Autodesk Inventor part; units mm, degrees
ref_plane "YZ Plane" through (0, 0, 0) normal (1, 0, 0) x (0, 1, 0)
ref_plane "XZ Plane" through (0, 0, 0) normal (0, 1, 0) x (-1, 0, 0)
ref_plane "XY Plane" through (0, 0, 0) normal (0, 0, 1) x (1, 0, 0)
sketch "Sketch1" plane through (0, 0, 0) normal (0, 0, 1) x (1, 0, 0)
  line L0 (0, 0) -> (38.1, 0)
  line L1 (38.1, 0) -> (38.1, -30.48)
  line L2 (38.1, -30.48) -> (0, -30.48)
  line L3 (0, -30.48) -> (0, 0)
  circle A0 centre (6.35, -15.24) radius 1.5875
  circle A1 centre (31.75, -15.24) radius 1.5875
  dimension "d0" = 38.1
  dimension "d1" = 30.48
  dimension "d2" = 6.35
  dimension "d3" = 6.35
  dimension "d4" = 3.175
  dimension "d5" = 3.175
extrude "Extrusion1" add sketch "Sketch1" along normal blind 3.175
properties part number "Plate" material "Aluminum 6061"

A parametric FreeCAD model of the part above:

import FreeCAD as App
import Part
import Sketcher

V = App.Vector
Q = App.Units.Quantity

doc = App.newDocument("Part")
body = doc.addObject("PartDesign::Body", "Body")

# Sketch on XY plane
sketch1 = body.newObject("Sketcher::SketchObject", "Sketch")
sketch1.AttachmentSupport = (doc.getObject("XY_Plane"), [""])
sketch1.MapMode = "FlatFace"
sketch1.addGeometry(Part.LineSegment(V(38.1, 0, 0), V(0, 0, 0)), False)
sketch1.addGeometry(Part.LineSegment(V(0, 0, 0), V(0, -30.5, 0)), False)
sketch1.addGeometry(Part.LineSegment(V(0, -30.5, 0), V(38.1, -30.5, 0)), False)
sketch1.addGeometry(Part.LineSegment(V(38.1, -30.5, 0), V(38.1, 0, 0)), False)
sketch1.addGeometry(Part.Circle(V(31.8, -15.2, 0), V(0, 0, 1), 1.6), False)
sketch1.addGeometry(Part.Circle(V(6.3, -15.2, 0), V(0, 0, 1), 1.6), False)
sketch1.addConstraint(Sketcher.Constraint("Coincident", 0, 2, 1, 1))
sketch1.addConstraint(Sketcher.Constraint("Coincident", 1, 2, 2, 1))
sketch1.addConstraint(Sketcher.Constraint("Coincident", 2, 2, 3, 1))
sketch1.addConstraint(Sketcher.Constraint("Coincident", 3, 2, 0, 1))
sketch1.addConstraint(Sketcher.Constraint("Horizontal", 0))
sketch1.addConstraint(Sketcher.Constraint("Vertical", 1))
sketch1.addConstraint(Sketcher.Constraint("Horizontal", 2))
sketch1.addConstraint(Sketcher.Constraint("Vertical", 3))
sketch1.addConstraint(Sketcher.Constraint("Coincident", 0, 2, -1, 1))
sketch1.addConstraint(Sketcher.Constraint("Equal", 4, 5))
sketch1.addConstraint(Sketcher.Constraint("Horizontal", 4, 3, 5, 3))
sketch1.addConstraint(Sketcher.Constraint("Diameter", 4, Q("0.125 in")))
sketch1.addConstraint(Sketcher.Constraint("DistanceX", 0, 2, 0, 1, Q("1.5 in")))
sketch1.addConstraint(Sketcher.Constraint("DistanceY", 1, 2, 1, 1, Q("1.2 in")))
sketch1.addConstraint(Sketcher.Constraint("DistanceX", -1, 1, 5, 3, Q("0.25 in")))
sketch1.addConstraint(Sketcher.Constraint("DistanceX", 4, 3, 2, 2, Q("0.25 in")))
sketch1.addConstraint(Sketcher.Constraint("DistanceY", 4, 3, -1, 1, Q("0.6 in")))
pad1 = body.newObject("PartDesign::Pad", "Pad")
pad1.Profile = sketch1
pad1.Length = Q("0.125 in")

doc.recompute()
